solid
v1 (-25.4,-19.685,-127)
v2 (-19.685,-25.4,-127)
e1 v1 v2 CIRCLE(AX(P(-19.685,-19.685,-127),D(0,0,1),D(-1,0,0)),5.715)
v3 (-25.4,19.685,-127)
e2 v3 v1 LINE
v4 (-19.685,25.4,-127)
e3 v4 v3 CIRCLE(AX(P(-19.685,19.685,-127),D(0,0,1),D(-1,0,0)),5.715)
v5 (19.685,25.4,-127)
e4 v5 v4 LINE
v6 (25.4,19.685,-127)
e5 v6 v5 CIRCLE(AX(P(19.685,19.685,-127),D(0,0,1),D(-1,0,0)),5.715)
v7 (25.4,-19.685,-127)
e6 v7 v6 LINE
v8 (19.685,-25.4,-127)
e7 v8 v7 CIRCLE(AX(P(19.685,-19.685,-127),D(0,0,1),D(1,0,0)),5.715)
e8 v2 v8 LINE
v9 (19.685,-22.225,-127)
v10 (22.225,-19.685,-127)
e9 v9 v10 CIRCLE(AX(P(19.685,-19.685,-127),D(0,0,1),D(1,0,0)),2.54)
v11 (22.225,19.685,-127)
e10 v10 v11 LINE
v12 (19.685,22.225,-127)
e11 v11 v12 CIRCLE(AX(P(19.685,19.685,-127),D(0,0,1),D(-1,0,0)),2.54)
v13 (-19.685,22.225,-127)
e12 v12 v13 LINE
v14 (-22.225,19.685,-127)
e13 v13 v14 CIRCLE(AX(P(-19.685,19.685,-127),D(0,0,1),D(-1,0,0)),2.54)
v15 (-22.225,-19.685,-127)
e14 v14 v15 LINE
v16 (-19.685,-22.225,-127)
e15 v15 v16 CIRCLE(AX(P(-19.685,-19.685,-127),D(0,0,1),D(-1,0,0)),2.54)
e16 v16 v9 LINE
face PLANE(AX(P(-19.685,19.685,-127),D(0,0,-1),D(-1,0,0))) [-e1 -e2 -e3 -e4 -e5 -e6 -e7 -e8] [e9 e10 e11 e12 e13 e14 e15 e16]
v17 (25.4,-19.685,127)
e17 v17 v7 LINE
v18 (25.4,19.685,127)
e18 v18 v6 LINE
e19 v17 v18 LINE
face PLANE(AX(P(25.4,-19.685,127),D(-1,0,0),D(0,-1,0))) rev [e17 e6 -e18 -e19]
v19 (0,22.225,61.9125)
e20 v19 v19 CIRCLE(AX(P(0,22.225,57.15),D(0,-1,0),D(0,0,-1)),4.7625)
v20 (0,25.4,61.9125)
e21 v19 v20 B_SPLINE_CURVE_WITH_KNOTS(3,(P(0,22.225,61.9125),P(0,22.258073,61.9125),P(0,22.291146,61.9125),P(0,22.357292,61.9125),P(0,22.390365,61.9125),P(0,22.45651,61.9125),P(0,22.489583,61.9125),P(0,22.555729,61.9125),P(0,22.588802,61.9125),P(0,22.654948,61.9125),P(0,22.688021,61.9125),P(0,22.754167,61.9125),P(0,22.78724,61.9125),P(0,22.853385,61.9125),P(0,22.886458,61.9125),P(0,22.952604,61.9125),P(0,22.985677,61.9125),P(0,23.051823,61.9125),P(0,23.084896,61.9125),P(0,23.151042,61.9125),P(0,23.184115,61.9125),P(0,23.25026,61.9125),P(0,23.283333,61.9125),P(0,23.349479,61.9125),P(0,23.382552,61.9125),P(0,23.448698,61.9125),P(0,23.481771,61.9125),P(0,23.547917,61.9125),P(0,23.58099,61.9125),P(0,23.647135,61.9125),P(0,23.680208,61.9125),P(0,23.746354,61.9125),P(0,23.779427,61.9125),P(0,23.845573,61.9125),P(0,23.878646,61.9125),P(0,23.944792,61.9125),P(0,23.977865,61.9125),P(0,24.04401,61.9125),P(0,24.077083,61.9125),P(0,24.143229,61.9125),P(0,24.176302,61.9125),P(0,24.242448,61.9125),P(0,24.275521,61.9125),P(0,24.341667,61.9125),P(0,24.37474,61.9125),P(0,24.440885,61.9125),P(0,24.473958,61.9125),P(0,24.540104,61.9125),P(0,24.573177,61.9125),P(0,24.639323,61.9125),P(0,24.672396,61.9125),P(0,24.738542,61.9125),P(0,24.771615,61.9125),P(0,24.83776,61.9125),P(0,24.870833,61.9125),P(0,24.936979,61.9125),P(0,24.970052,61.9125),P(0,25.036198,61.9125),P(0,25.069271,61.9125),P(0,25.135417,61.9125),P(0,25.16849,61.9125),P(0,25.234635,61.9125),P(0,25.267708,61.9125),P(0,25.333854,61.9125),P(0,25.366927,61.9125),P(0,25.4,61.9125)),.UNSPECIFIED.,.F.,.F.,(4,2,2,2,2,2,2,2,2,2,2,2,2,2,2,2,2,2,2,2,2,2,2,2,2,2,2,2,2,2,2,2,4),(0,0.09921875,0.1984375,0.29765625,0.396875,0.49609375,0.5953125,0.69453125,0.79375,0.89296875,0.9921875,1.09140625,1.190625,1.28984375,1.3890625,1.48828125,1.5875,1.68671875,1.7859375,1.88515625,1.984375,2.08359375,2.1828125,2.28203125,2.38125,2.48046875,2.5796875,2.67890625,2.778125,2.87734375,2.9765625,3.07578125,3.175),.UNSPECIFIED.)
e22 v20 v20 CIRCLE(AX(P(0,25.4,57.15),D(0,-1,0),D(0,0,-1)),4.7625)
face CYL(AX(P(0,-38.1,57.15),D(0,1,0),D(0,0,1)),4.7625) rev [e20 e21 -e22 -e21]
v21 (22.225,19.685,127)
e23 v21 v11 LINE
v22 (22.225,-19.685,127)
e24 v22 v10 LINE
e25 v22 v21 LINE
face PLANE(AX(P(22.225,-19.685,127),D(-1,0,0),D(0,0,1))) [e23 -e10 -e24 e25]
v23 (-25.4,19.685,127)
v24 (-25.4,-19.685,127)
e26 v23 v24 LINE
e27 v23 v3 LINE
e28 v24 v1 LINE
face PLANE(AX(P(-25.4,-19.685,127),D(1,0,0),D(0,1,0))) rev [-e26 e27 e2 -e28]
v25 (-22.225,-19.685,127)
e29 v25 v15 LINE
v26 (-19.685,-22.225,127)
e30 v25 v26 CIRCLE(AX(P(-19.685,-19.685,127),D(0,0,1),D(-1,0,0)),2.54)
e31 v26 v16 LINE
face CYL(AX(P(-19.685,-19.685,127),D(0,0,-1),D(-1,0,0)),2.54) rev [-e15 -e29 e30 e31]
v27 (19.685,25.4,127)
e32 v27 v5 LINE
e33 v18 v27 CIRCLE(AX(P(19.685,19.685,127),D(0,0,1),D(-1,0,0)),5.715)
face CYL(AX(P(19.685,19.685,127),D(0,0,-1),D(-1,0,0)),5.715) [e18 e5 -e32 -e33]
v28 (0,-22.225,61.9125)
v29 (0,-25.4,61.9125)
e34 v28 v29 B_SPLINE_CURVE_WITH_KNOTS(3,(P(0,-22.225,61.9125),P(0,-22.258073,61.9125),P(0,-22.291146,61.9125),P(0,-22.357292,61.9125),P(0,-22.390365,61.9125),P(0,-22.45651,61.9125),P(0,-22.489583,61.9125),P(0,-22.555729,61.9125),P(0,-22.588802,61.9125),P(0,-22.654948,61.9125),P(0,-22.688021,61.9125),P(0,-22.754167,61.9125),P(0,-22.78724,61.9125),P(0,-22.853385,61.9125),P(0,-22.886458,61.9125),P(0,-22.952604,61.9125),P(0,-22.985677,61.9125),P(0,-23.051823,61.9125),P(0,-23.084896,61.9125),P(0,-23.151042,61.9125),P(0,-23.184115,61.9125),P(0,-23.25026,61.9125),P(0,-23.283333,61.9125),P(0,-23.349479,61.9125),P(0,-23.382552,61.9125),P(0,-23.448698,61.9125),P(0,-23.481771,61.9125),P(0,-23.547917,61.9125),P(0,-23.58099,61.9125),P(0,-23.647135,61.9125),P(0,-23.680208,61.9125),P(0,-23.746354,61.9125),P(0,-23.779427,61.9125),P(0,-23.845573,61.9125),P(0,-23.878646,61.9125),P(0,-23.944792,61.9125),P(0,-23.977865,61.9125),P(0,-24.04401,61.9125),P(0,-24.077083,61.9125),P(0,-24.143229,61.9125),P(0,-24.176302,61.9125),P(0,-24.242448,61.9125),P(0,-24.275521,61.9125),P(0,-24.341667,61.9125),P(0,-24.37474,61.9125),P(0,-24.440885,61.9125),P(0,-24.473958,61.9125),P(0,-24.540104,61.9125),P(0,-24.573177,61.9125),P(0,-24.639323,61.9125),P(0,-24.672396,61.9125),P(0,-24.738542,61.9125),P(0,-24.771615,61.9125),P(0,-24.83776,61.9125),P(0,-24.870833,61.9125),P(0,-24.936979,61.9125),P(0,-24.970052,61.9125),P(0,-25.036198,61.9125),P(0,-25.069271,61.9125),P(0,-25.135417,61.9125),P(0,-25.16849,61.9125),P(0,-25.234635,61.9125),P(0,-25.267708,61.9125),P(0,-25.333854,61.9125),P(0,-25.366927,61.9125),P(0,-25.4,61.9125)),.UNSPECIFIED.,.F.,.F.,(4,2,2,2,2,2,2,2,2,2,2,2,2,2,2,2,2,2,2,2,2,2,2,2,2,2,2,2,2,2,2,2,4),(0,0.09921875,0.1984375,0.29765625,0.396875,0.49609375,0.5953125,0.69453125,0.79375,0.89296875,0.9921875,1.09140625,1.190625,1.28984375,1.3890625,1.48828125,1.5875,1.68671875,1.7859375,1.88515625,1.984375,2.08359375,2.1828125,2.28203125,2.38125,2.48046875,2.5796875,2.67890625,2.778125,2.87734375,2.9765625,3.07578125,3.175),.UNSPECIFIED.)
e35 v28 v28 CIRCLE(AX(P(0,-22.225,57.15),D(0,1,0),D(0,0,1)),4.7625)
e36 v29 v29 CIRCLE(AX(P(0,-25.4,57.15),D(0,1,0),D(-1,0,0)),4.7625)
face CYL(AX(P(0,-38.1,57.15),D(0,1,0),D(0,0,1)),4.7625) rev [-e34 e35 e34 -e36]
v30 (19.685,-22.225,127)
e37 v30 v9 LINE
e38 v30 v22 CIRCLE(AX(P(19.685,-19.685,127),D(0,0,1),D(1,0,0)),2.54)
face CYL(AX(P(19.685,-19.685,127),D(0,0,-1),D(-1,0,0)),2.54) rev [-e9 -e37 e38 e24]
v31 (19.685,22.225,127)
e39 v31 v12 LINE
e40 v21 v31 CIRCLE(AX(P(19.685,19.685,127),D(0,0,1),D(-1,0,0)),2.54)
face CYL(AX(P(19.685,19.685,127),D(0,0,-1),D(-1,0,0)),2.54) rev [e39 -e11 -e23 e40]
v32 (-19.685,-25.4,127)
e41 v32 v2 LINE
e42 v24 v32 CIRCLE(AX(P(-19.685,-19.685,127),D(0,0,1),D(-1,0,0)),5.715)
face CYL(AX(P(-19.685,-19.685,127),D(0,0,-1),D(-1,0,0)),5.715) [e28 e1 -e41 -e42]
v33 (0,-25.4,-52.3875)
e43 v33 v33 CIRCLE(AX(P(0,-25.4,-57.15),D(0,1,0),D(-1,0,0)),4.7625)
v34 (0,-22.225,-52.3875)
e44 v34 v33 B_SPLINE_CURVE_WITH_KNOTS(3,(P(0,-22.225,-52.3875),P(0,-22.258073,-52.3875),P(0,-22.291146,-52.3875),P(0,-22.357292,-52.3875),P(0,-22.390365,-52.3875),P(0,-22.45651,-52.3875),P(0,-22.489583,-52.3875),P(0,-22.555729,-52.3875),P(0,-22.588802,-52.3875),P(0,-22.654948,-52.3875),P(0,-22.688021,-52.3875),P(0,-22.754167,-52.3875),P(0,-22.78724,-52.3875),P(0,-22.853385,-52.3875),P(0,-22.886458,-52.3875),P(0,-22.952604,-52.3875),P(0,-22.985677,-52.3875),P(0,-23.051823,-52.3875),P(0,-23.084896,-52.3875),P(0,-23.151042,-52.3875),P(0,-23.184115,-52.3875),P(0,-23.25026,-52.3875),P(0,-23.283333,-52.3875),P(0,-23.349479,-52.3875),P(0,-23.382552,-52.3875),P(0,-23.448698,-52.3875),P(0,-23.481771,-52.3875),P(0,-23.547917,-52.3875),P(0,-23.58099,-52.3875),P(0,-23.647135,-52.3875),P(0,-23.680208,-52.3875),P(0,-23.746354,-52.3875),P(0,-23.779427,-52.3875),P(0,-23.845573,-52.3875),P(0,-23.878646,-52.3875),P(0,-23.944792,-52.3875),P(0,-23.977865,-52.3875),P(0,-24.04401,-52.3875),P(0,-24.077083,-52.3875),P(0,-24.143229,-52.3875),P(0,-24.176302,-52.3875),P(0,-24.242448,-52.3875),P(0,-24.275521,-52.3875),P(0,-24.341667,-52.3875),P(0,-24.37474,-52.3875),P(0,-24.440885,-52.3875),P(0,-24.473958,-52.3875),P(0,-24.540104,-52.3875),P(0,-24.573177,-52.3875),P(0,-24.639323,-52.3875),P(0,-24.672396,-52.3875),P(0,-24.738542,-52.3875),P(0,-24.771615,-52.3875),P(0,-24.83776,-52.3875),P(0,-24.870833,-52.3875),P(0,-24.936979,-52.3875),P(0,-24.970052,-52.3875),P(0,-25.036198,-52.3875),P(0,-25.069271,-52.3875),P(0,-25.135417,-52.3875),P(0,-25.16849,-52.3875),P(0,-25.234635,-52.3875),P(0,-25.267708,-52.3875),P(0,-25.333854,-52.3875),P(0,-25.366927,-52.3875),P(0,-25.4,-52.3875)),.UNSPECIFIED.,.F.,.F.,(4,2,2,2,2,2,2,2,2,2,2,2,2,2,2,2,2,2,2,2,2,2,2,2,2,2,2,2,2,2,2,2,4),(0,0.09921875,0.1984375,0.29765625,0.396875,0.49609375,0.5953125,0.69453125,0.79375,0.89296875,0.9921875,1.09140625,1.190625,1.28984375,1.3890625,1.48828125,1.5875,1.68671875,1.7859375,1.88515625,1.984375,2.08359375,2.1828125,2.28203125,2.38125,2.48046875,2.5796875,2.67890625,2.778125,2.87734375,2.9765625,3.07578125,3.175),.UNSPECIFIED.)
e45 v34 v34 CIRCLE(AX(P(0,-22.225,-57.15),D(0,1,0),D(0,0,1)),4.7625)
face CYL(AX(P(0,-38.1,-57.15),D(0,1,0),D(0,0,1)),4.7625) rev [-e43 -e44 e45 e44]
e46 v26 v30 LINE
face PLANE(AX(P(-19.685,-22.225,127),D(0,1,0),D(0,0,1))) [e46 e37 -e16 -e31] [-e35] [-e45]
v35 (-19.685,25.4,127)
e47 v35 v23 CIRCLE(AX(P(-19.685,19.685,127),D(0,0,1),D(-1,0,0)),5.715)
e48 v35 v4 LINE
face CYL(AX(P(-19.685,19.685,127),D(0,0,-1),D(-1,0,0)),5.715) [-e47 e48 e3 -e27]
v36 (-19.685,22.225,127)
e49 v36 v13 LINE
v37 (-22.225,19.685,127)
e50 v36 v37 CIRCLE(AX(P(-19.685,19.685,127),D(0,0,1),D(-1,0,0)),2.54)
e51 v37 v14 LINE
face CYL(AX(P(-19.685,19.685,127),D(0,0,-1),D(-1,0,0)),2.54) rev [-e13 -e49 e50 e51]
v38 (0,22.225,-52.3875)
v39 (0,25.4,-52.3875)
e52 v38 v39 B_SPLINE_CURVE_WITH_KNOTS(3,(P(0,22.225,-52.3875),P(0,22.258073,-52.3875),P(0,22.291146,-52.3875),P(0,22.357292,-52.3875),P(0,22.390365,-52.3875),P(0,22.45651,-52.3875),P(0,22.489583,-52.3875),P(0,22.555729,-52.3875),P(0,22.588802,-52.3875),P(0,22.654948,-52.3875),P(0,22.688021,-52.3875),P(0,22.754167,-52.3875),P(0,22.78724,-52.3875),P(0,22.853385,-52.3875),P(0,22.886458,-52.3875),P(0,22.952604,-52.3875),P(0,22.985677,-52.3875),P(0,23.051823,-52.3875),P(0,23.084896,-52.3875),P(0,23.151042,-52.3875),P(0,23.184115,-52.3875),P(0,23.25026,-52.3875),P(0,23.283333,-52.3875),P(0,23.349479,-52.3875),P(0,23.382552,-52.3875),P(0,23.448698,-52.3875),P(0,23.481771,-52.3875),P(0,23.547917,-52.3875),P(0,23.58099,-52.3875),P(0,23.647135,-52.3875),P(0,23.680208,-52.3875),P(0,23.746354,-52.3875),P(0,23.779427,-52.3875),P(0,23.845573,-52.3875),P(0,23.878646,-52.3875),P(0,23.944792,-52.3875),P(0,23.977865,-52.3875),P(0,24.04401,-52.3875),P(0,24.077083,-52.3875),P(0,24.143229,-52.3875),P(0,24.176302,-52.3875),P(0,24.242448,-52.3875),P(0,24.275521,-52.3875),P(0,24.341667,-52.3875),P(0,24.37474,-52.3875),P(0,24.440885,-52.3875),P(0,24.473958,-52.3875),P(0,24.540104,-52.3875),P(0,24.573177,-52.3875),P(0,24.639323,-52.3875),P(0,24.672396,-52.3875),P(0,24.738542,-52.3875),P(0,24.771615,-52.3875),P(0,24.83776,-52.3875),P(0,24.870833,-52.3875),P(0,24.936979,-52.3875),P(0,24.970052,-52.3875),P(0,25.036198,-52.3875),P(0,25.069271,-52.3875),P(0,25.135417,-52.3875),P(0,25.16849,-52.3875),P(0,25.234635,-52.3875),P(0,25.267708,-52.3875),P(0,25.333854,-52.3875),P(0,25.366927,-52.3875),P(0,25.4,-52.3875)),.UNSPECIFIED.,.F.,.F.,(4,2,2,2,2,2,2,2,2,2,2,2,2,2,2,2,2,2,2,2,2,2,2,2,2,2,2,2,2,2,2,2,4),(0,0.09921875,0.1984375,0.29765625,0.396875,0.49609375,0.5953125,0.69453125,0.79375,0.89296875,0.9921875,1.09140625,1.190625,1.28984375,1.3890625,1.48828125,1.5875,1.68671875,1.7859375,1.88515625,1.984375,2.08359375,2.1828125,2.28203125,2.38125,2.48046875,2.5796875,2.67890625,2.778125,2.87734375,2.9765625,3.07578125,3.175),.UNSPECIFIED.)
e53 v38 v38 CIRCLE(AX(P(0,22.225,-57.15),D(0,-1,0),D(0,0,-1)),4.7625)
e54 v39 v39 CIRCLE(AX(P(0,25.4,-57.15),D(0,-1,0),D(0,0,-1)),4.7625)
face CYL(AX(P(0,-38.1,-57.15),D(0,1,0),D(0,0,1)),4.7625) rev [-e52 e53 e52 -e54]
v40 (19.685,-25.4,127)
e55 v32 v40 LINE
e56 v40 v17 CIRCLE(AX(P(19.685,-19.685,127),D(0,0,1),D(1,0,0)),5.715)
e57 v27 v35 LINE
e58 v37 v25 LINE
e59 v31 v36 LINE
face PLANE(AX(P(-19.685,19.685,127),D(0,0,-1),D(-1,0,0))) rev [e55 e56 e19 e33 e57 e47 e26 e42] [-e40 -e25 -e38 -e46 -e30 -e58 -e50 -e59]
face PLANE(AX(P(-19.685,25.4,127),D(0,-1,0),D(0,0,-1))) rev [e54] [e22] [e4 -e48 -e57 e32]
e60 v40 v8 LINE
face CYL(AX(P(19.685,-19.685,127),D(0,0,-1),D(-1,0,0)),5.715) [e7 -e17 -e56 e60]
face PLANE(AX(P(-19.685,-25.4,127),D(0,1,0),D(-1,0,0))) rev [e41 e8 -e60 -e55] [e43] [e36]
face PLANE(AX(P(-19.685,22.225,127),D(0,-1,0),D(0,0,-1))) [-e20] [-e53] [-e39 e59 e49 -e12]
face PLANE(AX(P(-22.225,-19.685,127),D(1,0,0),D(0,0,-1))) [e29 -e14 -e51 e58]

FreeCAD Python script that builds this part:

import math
import FreeCAD as App
import Part
import Sketcher

V = App.Vector
Q = App.Units.Quantity

doc = App.newDocument("Part")
params = doc.addObject("Spreadsheet::Sheet", "Params")
for row, (alias, value) in enumerate([
    ("sketch1_radius", "0.1 in"),
    ("sketch1_radius2", "0.225 in"),
    ("pad1_length", "10 in"),
    ("sketch2_diameter", "0.375 in"),
    ("pocket1_length", "3 in"),
], start=1):
    params.set(f"A{row}", alias)
    params.set(f"B{row}", "=" + value)
    params.setAlias(f"B{row}", alias)

body = doc.addObject("PartDesign::Body", "Body")

# Sketch on XY plane
sketch1 = body.newObject("Sketcher::SketchObject", "Sketch")
sketch1.AttachmentSupport = (doc.getObject("XY_Plane"), [""])
sketch1.MapMode = "FlatFace"
sketch1.addGeometry([
    Part.LineSegment(V(19.7, 25.4, 0), V(-19.7, 25.4, 0)),  # 0
    Part.ArcOfCircle(Part.Circle(V(-19.7, 19.7, 0), V(0, 0, 1), 5.7), math.radians(90), math.radians(180)),  # 1
    Part.LineSegment(V(-25.4, 19.7, 0), V(-25.4, -19.7, 0)),  # 2
    Part.ArcOfCircle(Part.Circle(V(-19.7, -19.7, 0), V(0, 0, 1), 5.7), math.radians(-180), math.radians(-90)),  # 3
    Part.LineSegment(V(-19.7, -25.4, 0), V(19.7, -25.4, 0)),  # 4
    Part.ArcOfCircle(Part.Circle(V(19.7, -19.7, 0), V(0, 0, 1), 5.7), math.radians(-90), math.radians(0)),  # 5
    Part.LineSegment(V(25.4, -19.7, 0), V(25.4, 19.7, 0)),  # 6
    Part.ArcOfCircle(Part.Circle(V(19.7, 19.7, 0), V(0, 0, 1), 5.7), math.radians(0), math.radians(90)),  # 7
    Part.ArcOfCircle(Part.Circle(V(-19.7, -19.7, 0), V(0, 0, 1), 2.5), math.radians(-180), math.radians(-90)),  # 8
    Part.LineSegment(V(-22.2, -19.7, 0), V(-22.2, 19.7, 0)),  # 9
    Part.ArcOfCircle(Part.Circle(V(-19.7, 19.7, 0), V(0, 0, 1), 2.5), math.radians(90), math.radians(180)),  # 10
    Part.LineSegment(V(-19.7, 22.2, 0), V(19.7, 22.2, 0)),  # 11
    Part.ArcOfCircle(Part.Circle(V(19.7, 19.7, 0), V(0, 0, 1), 2.5), math.radians(0), math.radians(90)),  # 12
    Part.LineSegment(V(22.2, 19.7, 0), V(22.2, -19.7, 0)),  # 13
    Part.ArcOfCircle(Part.Circle(V(19.7, -19.7, 0), V(0, 0, 1), 2.5), math.radians(-90), math.radians(0)),  # 14
    Part.LineSegment(V(19.7, -22.2, 0), V(-19.7, -22.2, 0)),  # 15
], False)
sketch1.addConstraint([
    Sketcher.Constraint("Tangent", 0, 2, 1, 1),
    Sketcher.Constraint("Tangent", 1, 2, 2, 1),
    Sketcher.Constraint("Tangent", 2, 2, 3, 1),
    Sketcher.Constraint("Tangent", 3, 2, 4, 1),
    Sketcher.Constraint("Tangent", 4, 2, 5, 1),
    Sketcher.Constraint("Tangent", 5, 2, 6, 1),
    Sketcher.Constraint("Tangent", 6, 2, 7, 1),
    Sketcher.Constraint("Tangent", 7, 2, 0, 1),
    Sketcher.Constraint("Tangent", 8, 1, 9, 1),
    Sketcher.Constraint("Tangent", 9, 2, 10, 2),
    Sketcher.Constraint("Tangent", 10, 1, 11, 1),
    Sketcher.Constraint("Tangent", 11, 2, 12, 2),
    Sketcher.Constraint("Tangent", 12, 1, 13, 1),
    Sketcher.Constraint("Tangent", 13, 2, 14, 2),
    Sketcher.Constraint("Tangent", 14, 1, 15, 1),
    Sketcher.Constraint("Tangent", 15, 2, 8, 2),
    Sketcher.Constraint("Horizontal", 0),
    Sketcher.Constraint("Vertical", 2),
    Sketcher.Constraint("Horizontal", 4),
    Sketcher.Constraint("Vertical", 6),
    Sketcher.Constraint("Vertical", 9),
    Sketcher.Constraint("Horizontal", 11),
    Sketcher.Constraint("Vertical", 13),
    Sketcher.Constraint("Horizontal", 15),
    Sketcher.Constraint("Coincident", 8, 3, 3, 3),
    Sketcher.Constraint("Coincident", 10, 3, 1, 3),
    Sketcher.Constraint("Coincident", 12, 3, 7, 3),
    Sketcher.Constraint("Equal", 1, 3),
    Sketcher.Constraint("Equal", 3, 5),
    Sketcher.Constraint("Equal", 5, 7),
    Sketcher.Constraint("Equal", 12, 14),
    Sketcher.Constraint("Symmetric", 1, 3, 5, 3, -1, 1),
    Sketcher.Constraint("Equal", 15, 2),
    Sketcher.Constraint("Radius", 8, Q("0.1 in")),
    Sketcher.Constraint("DistanceY", -1, 1, 0, 2, Q("1 in")),
    Sketcher.Constraint("Radius", 1, Q("0.225 in")),
])
sketch1.setExpression("Constraints[33]", "Params.sketch1_radius")
sketch1.setExpression("Constraints[35]", "Params.sketch1_radius2")
pad1 = body.newObject("PartDesign::Pad", "Pad")
pad1.Profile = sketch1
pad1.setExpression("Length", "Params.pad1_length")
pad1.Midplane = True

# Sketch on XZ plane
sketch2 = body.newObject("Sketcher::SketchObject", "Sketch001")
sketch2.AttachmentSupport = (doc.getObject("XZ_Plane"), [""])
sketch2.MapMode = "FlatFace"
sketch2.addGeometry([
    Part.Circle(V(0, -57.1, 0), V(0, 0, 1), 4.8),
    Part.Circle(V(0, 57.1, 0), V(0, 0, 1), 4.8),
], False)
sketch2.addConstraint([
    Sketcher.Constraint("Equal", 0, 1),
    Sketcher.Constraint("Symmetric", 0, 3, 1, 3, -1, 1),
    Sketcher.Constraint("PointOnObject", 0, 3, -2),
    Sketcher.Constraint("Diameter", 0, Q("0.375 in")),
    Sketcher.Constraint("DistanceY", 0, 3, 1, 3, Q("4.5 in")),
])
sketch2.setExpression("Constraints[3]", "Params.sketch2_diameter")
pocket1 = body.newObject("PartDesign::Pocket", "Pocket")
pocket1.Profile = sketch2
pocket1.setExpression("Length", "Params.pocket1_length")
pocket1.Midplane = True

doc.recompute()
